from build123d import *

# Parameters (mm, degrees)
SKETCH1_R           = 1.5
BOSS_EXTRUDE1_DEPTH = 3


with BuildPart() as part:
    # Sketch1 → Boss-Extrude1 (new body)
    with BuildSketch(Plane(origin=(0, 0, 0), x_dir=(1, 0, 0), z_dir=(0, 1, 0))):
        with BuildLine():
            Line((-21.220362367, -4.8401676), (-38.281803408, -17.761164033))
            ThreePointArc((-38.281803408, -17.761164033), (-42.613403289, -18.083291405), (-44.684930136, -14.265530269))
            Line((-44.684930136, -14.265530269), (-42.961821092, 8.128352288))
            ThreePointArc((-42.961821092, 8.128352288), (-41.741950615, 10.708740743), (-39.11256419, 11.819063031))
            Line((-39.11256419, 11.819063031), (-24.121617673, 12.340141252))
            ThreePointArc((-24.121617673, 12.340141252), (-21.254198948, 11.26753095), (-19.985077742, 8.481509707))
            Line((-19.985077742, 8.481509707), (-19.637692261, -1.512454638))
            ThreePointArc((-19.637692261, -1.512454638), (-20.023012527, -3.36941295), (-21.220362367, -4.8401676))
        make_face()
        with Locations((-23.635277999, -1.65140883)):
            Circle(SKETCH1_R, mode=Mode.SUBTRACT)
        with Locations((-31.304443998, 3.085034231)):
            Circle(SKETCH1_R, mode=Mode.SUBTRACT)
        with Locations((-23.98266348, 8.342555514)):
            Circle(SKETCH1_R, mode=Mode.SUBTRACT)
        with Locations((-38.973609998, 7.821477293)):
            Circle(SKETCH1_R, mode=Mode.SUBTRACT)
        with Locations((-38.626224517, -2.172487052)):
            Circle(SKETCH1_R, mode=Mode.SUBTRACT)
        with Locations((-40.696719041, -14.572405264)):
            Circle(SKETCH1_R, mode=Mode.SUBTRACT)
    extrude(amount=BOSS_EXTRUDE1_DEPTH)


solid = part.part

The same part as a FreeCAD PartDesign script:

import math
import FreeCAD as App
import Part
import Sketcher
Q = App.Units.Quantity

doc = App.newDocument("Part")
body = doc.addObject("PartDesign::Body", "Body")

# Sketch on XZ plane
sketch1 = body.newObject("Sketcher::SketchObject", "Sketch")
sketch1.AttachmentSupport = (doc.getObject("XZ_Plane"), [""])
sketch1.MapMode = "FlatFace"
sketch1.addGeometry([
    Part.LineSegment(App.Vector(-38.3, 17.8, 0), App.Vector(-21.2, 4.8, 0)),  # 0
    Part.ArcOfCircle(Part.Circle(App.Vector(-23.6, 1.7, 0), App.Vector(0, 0, 1), 4), math.radians(-2), math.radians(53)),  # 1
    Part.LineSegment(App.Vector(-19.6, 1.5, 0), App.Vector(-20, -8.5, 0)),  # 2
    Part.ArcOfCircle(Part.Circle(App.Vector(-24, -8.3, 0), App.Vector(0, 0, 1), 4), math.radians(-92), math.radians(-2)),  # 3
    Part.LineSegment(App.Vector(-24.1, -12.3, 0), App.Vector(-39.1, -11.8, 0)),  # 4
    Part.ArcOfCircle(Part.Circle(App.Vector(-39, -7.8, 0), App.Vector(0, 0, 1), 4), math.radians(-176), math.radians(-92)),  # 5
    Part.LineSegment(App.Vector(-43, -8.1, 0), App.Vector(-44.7, 14.3, 0)),  # 6
    Part.ArcOfCircle(Part.Circle(App.Vector(-40.7, 14.6, 0), App.Vector(0, 0, 1), 4), math.radians(53), math.radians(184)),  # 7
    Part.Circle(App.Vector(-40.7, 14.6, 0), App.Vector(0, 0, 1), 1.5),  # 8
    Part.Circle(App.Vector(-23.6, 1.7, 0), App.Vector(0, 0, 1), 1.5),  # 9
    Part.Circle(App.Vector(-31.3, -3.1, 0), App.Vector(0, 0, 1), 1.5),  # 10
    Part.Circle(App.Vector(-24, -8.3, 0), App.Vector(0, 0, 1), 1.5),  # 11
    Part.Circle(App.Vector(-38.6, 2.2, 0), App.Vector(0, 0, 1), 1.5),  # 12
    Part.Circle(App.Vector(-39, -7.8, 0), App.Vector(0, 0, 1), 1.5),  # 13
], False)
sketch1.addConstraint([
    Sketcher.Constraint("Tangent", 0, 2, 1, 2),
    Sketcher.Constraint("Tangent", 1, 1, 2, 1),
    Sketcher.Constraint("Tangent", 2, 2, 3, 2),
    Sketcher.Constraint("Tangent", 3, 1, 4, 1),
    Sketcher.Constraint("Tangent", 4, 2, 5, 2),
    Sketcher.Constraint("Tangent", 5, 1, 6, 1),
    Sketcher.Constraint("Tangent", 6, 2, 7, 2),
    Sketcher.Constraint("Tangent", 7, 1, 0, 1),
    Sketcher.Constraint("Coincident", 8, 3, 7, 3),
    Sketcher.Constraint("Coincident", 9, 3, 1, 3),
    Sketcher.Constraint("Coincident", 11, 3, 3, 3),
    Sketcher.Constraint("Coincident", 13, 3, 5, 3),
    Sketcher.Constraint("Equal", 1, 3),
    Sketcher.Constraint("Equal", 3, 5),
    Sketcher.Constraint("Equal", 5, 7),
    Sketcher.Constraint("Equal", 8, 9),
    Sketcher.Constraint("Equal", 9, 10),
    Sketcher.Constraint("Equal", 10, 11),
    Sketcher.Constraint("Equal", 11, 12),
    Sketcher.Constraint("Equal", 12, 13),
    Sketcher.Constraint("Perpendicular", 2, 4),
    Sketcher.Constraint("Diameter", 8, 3.0),
    Sketcher.Constraint("Radius", 1, 4.0),
    Sketcher.Constraint("Distance", 2, 10.0),
    Sketcher.Constraint("Distance", 4, 15.0),
    Sketcher.Constraint("Angle", 6, Q("94.399984 deg")),
    Sketcher.Constraint("DistanceY", 10, 3, 0, 2, 7.925202),
    Sketcher.Constraint("DistanceX", 11, 3, 0, 2, 2.762301),
    Sketcher.Constraint("DistanceX", 1, 3, 2, 2, 3.6502),
    Sketcher.Constraint("DistanceX", 1, 3, -1, 1, 23.635278),
    Sketcher.Constraint("DistanceY", -1, 1, 1, 3, 1.651409),
    Sketcher.Constraint("DistanceX", 10, 3, 3, 3, 7.321781),
    Sketcher.Constraint("DistanceX", 12, 3, 10, 3, 7.321781),
    Sketcher.Constraint("DistanceY", 10, 3, 12, 3, 5.257521),
])
pad1 = body.newObject("PartDesign::Pad", "Pad")
pad1.Profile = sketch1
pad1.Length = 3
pad1.Reversed = True

doc.recompute()
